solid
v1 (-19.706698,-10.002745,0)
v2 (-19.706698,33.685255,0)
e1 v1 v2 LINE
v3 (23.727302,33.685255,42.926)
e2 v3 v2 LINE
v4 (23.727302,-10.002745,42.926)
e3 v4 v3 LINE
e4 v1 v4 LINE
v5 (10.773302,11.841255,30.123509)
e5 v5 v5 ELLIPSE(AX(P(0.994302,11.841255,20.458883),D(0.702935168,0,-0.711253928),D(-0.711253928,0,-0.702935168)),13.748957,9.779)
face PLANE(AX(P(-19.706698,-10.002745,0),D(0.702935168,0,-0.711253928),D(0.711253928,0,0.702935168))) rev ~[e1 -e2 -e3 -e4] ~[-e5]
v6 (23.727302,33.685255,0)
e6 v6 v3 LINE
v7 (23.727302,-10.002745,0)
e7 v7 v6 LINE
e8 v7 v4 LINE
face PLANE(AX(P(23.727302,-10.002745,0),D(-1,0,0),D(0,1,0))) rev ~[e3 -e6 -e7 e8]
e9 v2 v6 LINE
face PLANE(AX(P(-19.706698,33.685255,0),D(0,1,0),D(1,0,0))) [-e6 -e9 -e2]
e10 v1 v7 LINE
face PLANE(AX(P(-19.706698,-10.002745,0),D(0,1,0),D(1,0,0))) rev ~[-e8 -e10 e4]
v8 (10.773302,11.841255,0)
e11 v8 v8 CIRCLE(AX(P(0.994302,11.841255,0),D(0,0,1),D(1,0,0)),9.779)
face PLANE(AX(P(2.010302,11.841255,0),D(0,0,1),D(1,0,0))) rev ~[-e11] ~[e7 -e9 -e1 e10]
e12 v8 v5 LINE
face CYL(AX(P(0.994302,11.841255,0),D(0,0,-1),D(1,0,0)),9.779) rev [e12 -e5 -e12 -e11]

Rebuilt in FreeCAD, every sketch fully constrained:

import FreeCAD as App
import Part
import Sketcher
from FreeCAD import Vector
Q = App.Units.Quantity

doc = App.newDocument("Part")
body = doc.addObject("PartDesign::Body", "Body")

sketch1 = doc.addObject("Sketcher::SketchObject", "Sketch")
body.addObject(sketch1)
sketch1.AttachmentSupport = (doc.XY_Plane, [""])
sketch1.MapMode = "FlatFace"
sketch1.addGeometry([
    Part.LineSegment(Vector(-20, 34, 0), Vector(-20, -10, 0)),
    Part.LineSegment(Vector(-20, -10, 0), Vector(24, -10, 0)),
    Part.LineSegment(Vector(24, -10, 0), Vector(24, 34, 0)),
    Part.LineSegment(Vector(24, 34, 0), Vector(-20, 34, 0)),
    Part.Circle(Vector(1, 12, 0), Vector(0, 0, 1), 10),
], False)
sketch1.addConstraint([
    Sketcher.Constraint("Coincident", 0, 2, 1, 1),
    Sketcher.Constraint("Coincident", 1, 2, 2, 1),
    Sketcher.Constraint("Coincident", 2, 2, 3, 1),
    Sketcher.Constraint("Coincident", 3, 2, 0, 1),
    Sketcher.Constraint("Vertical", 0),
    Sketcher.Constraint("Horizontal", 1),
    Sketcher.Constraint("Vertical", 2),
    Sketcher.Constraint("Horizontal", 3),
    Sketcher.Constraint("Diameter", 4, Q("0.77 in")),
    Sketcher.Constraint("DistanceX", 1, 1, 1, 2, Q("1.71 in")),
    Sketcher.Constraint("DistanceY", 0, 2, 0, 1, Q("1.72 in")),
    Sketcher.Constraint("DistanceY", 0, 2, 4, 3, Q("0.86 in")),
    Sketcher.Constraint("DistanceX", 0, 2, 4, 3, Q("0.815 in")),
    Sketcher.Constraint("DistanceX", -1, 1, 4, 3, Q("0.994302 mm")),
    Sketcher.Constraint("DistanceY", -1, 1, 4, 3, Q("11.841255 mm")),
])
pad1 = doc.addObject("PartDesign::Pad", "Pad")
body.addObject(pad1)
pad1.Profile = sketch1
pad1.Length = Q("1.69 in")

sketch2 = doc.addObject("Sketcher::SketchObject", "Sketch001")
body.addObject(sketch2)
sketch2.AttachmentSupport = (doc.XZ_Plane, [""])
sketch2.MapMode = "FlatFace"
sketch2.AttachmentOffset = App.Placement(Vector(0, 0, 10.002745), App.Rotation())
sketch2.addGeometry([
    Part.LineSegment(Vector(-20, 0, 0), Vector(24, 43, 0)),
    Part.LineSegment(Vector(24, 43, 0), Vector(-20, 43, 0)),
    Part.LineSegment(Vector(-20, 43, 0), Vector(-20, 0, 0)),
], False)
sketch2.addConstraint([
    Sketcher.Constraint("Coincident", 0, 2, 1, 1),
    Sketcher.Constraint("Coincident", 1, 2, 2, 1),
    Sketcher.Constraint("Coincident", 2, 2, 0, 1),
    Sketcher.Constraint("Horizontal", 1),
    Sketcher.Constraint("Vertical", 2),
    Sketcher.Constraint("PointOnObject", 2, 2, -1),
    Sketcher.Constraint("DistanceX", 1, 2, 1, 1, Q("1.71 in")),
    Sketcher.Constraint("DistanceY", 2, 2, 2, 1, Q("1.69 in")),
    Sketcher.Constraint("DistanceX", -1, 1, 0, 2, Q("23.727302 mm")),
])
pocket1 = doc.addObject("PartDesign::Pocket", "Pocket")
body.addObject(pocket1)
pocket1.Profile = sketch2
pocket1.Type = "ThroughAll"

doc.recompute()
